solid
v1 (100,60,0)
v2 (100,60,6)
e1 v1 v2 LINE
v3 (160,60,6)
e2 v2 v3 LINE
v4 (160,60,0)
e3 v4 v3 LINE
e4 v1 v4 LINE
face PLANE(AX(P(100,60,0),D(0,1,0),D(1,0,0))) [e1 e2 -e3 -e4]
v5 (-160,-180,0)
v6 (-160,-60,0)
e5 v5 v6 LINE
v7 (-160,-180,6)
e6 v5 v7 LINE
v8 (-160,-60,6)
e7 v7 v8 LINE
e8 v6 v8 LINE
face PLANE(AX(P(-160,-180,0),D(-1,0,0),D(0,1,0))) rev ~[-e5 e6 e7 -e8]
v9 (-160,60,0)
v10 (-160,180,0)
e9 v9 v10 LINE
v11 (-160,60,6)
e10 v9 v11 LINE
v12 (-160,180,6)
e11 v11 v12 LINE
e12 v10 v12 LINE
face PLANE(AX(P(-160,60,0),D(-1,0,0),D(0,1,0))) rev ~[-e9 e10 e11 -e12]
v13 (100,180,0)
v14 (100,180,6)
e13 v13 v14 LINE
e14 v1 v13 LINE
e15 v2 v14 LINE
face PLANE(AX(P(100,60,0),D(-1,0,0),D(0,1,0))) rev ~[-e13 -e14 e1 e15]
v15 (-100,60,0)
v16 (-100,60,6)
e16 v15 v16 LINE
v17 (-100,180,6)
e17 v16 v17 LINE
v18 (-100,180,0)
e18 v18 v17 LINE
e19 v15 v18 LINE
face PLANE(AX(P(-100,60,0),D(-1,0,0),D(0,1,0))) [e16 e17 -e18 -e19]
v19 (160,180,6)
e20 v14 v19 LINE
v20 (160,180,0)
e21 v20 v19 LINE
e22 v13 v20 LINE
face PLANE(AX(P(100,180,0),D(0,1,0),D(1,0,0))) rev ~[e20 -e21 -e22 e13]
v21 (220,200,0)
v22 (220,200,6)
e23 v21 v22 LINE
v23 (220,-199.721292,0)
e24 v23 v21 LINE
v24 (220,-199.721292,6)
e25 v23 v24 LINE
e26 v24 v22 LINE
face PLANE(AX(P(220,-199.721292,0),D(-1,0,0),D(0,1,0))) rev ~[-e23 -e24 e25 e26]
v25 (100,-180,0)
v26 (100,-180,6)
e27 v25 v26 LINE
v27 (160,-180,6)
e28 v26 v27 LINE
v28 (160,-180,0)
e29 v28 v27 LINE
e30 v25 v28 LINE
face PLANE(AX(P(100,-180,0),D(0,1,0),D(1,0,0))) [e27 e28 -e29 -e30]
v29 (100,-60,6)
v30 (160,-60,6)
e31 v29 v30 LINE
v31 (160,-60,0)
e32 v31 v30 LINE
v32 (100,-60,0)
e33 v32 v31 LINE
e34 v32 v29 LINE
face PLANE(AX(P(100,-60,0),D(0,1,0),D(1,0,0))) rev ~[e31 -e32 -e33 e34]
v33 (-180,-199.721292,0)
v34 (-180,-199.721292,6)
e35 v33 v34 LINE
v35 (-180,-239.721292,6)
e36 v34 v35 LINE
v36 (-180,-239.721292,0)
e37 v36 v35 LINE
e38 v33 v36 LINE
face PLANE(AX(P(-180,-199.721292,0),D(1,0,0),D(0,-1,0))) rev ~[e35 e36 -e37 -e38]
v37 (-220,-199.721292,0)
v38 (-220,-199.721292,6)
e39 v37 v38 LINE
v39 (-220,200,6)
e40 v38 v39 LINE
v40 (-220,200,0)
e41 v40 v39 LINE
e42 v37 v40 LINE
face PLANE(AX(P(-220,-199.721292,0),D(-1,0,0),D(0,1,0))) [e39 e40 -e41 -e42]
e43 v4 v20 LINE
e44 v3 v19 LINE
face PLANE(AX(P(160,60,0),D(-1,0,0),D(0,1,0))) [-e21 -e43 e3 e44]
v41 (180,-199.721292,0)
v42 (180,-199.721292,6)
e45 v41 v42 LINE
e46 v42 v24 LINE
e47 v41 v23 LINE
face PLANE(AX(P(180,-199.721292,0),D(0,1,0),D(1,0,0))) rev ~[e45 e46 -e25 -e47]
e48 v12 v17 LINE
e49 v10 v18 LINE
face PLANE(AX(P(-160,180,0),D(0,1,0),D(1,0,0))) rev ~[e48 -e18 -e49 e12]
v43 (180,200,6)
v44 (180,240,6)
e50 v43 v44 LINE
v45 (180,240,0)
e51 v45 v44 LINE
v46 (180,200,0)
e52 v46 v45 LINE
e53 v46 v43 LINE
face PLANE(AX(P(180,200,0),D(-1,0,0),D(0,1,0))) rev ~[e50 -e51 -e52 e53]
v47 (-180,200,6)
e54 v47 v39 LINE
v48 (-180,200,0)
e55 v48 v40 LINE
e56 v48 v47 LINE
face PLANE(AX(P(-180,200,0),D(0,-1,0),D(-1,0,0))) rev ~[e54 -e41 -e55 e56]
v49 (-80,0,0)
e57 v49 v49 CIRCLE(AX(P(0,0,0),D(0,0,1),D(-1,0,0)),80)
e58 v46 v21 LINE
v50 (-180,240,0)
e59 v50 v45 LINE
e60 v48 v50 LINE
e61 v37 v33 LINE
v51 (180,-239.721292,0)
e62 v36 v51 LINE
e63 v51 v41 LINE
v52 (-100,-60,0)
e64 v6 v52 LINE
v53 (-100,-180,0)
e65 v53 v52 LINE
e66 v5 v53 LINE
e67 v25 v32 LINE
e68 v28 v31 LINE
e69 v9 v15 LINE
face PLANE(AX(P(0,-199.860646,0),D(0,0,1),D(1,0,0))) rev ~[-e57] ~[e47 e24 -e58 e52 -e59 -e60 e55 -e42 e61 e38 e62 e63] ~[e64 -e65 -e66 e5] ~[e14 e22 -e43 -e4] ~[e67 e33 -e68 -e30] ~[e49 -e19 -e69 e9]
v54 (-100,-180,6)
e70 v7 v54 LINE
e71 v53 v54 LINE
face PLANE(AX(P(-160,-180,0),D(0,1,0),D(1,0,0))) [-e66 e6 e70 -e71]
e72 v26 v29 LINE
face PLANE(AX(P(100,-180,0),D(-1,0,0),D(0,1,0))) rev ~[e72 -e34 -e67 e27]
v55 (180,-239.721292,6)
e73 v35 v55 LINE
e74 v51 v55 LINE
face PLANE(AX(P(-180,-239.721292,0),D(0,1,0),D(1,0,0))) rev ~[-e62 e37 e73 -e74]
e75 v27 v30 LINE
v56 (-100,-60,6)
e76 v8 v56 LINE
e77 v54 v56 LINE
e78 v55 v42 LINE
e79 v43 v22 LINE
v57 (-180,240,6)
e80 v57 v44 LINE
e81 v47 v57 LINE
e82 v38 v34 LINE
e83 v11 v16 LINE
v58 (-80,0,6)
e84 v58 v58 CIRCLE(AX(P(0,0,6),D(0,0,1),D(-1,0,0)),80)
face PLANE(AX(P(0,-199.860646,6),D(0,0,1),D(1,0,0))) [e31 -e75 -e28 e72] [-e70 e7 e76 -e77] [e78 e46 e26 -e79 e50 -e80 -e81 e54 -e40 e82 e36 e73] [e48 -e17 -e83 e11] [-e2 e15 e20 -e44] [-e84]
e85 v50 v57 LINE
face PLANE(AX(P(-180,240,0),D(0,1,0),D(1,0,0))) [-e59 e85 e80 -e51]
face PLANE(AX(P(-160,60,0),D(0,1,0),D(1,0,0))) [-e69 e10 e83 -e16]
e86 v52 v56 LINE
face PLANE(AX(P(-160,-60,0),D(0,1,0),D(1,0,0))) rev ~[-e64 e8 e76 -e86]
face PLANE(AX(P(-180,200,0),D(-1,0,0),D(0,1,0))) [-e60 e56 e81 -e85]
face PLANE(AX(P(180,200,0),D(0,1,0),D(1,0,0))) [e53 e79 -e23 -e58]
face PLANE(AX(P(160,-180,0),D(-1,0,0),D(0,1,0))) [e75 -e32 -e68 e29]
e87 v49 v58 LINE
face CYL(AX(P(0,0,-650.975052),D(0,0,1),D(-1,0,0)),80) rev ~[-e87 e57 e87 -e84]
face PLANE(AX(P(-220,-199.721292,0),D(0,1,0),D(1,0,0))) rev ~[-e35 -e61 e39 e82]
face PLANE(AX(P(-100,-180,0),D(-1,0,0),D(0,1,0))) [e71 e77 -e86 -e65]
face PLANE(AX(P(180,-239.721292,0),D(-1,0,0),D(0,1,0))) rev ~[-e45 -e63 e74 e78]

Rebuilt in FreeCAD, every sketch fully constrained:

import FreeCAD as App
import Part
import Sketcher
Q = App.Units.Quantity

doc = App.newDocument("Part")
body = doc.addObject("PartDesign::Body", "Body")

# Sketch on XY plane
sketch1 = body.newObject("Sketcher::SketchObject", "Sketch")
sketch1.AttachmentSupport = (doc.getObject("XY_Plane"), [""])
sketch1.MapMode = "FlatFace"
sketch1.addGeometry(Part.LineSegment(App.Vector(180, 240, 0), App.Vector(-180, 240, 0)), False)
sketch1.addGeometry(Part.LineSegment(App.Vector(-180, 240, 0), App.Vector(-180, 200, 0)), False)
sketch1.addGeometry(Part.LineSegment(App.Vector(-180, 200, 0), App.Vector(-220, 200, 0)), False)
sketch1.addGeometry(Part.LineSegment(App.Vector(-220, 200, 0), App.Vector(-220, -200, 0)), False)
sketch1.addGeometry(Part.LineSegment(App.Vector(-220, -200, 0), App.Vector(-180, -200, 0)), False)
sketch1.addGeometry(Part.LineSegment(App.Vector(-180, -200, 0), App.Vector(-180, -240, 0)), False)
sketch1.addGeometry(Part.LineSegment(App.Vector(-180, -240, 0), App.Vector(180, -240, 0)), False)
sketch1.addGeometry(Part.LineSegment(App.Vector(180, -240, 0), App.Vector(180, -200, 0)), False)
sketch1.addGeometry(Part.LineSegment(App.Vector(180, -200, 0), App.Vector(220, -200, 0)), False)
sketch1.addGeometry(Part.LineSegment(App.Vector(220, -200, 0), App.Vector(220, 200, 0)), False)
sketch1.addGeometry(Part.LineSegment(App.Vector(220, 200, 0), App.Vector(180, 200, 0)), False)
sketch1.addGeometry(Part.LineSegment(App.Vector(180, 200, 0), App.Vector(180, 240, 0)), False)
sketch1.addGeometry(Part.LineSegment(App.Vector(-100, -180, 0), App.Vector(-160, -180, 0)), False)
sketch1.addGeometry(Part.LineSegment(App.Vector(-160, -180, 0), App.Vector(-160, -60, 0)), False)
sketch1.addGeometry(Part.LineSegment(App.Vector(-160, -60, 0), App.Vector(-100, -60, 0)), False)
sketch1.addGeometry(Part.LineSegment(App.Vector(-100, -60, 0), App.Vector(-100, -180, 0)), False)
sketch1.addGeometry(Part.LineSegment(App.Vector(160, -180, 0), App.Vector(100, -180, 0)), False)
sketch1.addGeometry(Part.LineSegment(App.Vector(100, -180, 0), App.Vector(100, -60, 0)), False)
sketch1.addGeometry(Part.LineSegment(App.Vector(100, -60, 0), App.Vector(160, -60, 0)), False)
sketch1.addGeometry(Part.LineSegment(App.Vector(160, -60, 0), App.Vector(160, -180, 0)), False)
sketch1.addGeometry(Part.LineSegment(App.Vector(-100, 60, 0), App.Vector(-160, 60, 0)), False)
sketch1.addGeometry(Part.LineSegment(App.Vector(-160, 60, 0), App.Vector(-160, 180, 0)), False)
sketch1.addGeometry(Part.LineSegment(App.Vector(-160, 180, 0), App.Vector(-100, 180, 0)), False)
sketch1.addGeometry(Part.LineSegment(App.Vector(-100, 180, 0), App.Vector(-100, 60, 0)), False)
sketch1.addGeometry(Part.LineSegment(App.Vector(160, 60, 0), App.Vector(100, 60, 0)), False)
sketch1.addGeometry(Part.LineSegment(App.Vector(100, 60, 0), App.Vector(100, 180, 0)), False)
sketch1.addGeometry(Part.LineSegment(App.Vector(100, 180, 0), App.Vector(160, 180, 0)), False)
sketch1.addGeometry(Part.LineSegment(App.Vector(160, 180, 0), App.Vector(160, 60, 0)), False)
sketch1.addConstraint(Sketcher.Constraint("Coincident", 0, 2, 1, 1))
sketch1.addConstraint(Sketcher.Constraint("Coincident", 1, 2, 2, 1))
sketch1.addConstraint(Sketcher.Constraint("Coincident", 2, 2, 3, 1))
sketch1.addConstraint(Sketcher.Constraint("Coincident", 3, 2, 4, 1))
sketch1.addConstraint(Sketcher.Constraint("Coincident", 4, 2, 5, 1))
sketch1.addConstraint(Sketcher.Constraint("Coincident", 5, 2, 6, 1))
sketch1.addConstraint(Sketcher.Constraint("Coincident", 6, 2, 7, 1))
sketch1.addConstraint(Sketcher.Constraint("Coincident", 7, 2, 8, 1))
sketch1.addConstraint(Sketcher.Constraint("Coincident", 8, 2, 9, 1))
sketch1.addConstraint(Sketcher.Constraint("Coincident", 9, 2, 10, 1))
sketch1.addConstraint(Sketcher.Constraint("Coincident", 10, 2, 11, 1))
sketch1.addConstraint(Sketcher.Constraint("Coincident", 11, 2, 0, 1))
sketch1.addConstraint(Sketcher.Constraint("Coincident", 12, 2, 13, 1))
sketch1.addConstraint(Sketcher.Constraint("Coincident", 13, 2, 14, 1))
sketch1.addConstraint(Sketcher.Constraint("Coincident", 14, 2, 15, 1))
sketch1.addConstraint(Sketcher.Constraint("Coincident", 15, 2, 12, 1))
sketch1.addConstraint(Sketcher.Constraint("Coincident", 16, 2, 17, 1))
sketch1.addConstraint(Sketcher.Constraint("Coincident", 17, 2, 18, 1))
sketch1.addConstraint(Sketcher.Constraint("Coincident", 18, 2, 19, 1))
sketch1.addConstraint(Sketcher.Constraint("Coincident", 19, 2, 16, 1))
sketch1.addConstraint(Sketcher.Constraint("Coincident", 20, 2, 21, 1))
sketch1.addConstraint(Sketcher.Constraint("Coincident", 21, 2, 22, 1))
sketch1.addConstraint(Sketcher.Constraint("Coincident", 22, 2, 23, 1))
sketch1.addConstraint(Sketcher.Constraint("Coincident", 23, 2, 20, 1))
sketch1.addConstraint(Sketcher.Constraint("Coincident", 24, 2, 25, 1))
sketch1.addConstraint(Sketcher.Constraint("Coincident", 25, 2, 26, 1))
sketch1.addConstraint(Sketcher.Constraint("Coincident", 26, 2, 27, 1))
sketch1.addConstraint(Sketcher.Constraint("Coincident", 27, 2, 24, 1))
sketch1.addConstraint(Sketcher.Constraint("Horizontal", 0))
sketch1.addConstraint(Sketcher.Constraint("Vertical", 1))
sketch1.addConstraint(Sketcher.Constraint("Horizontal", 2))
sketch1.addConstraint(Sketcher.Constraint("Vertical", 3))
sketch1.addConstraint(Sketcher.Constraint("Horizontal", 4))
sketch1.addConstraint(Sketcher.Constraint("Vertical", 5))
sketch1.addConstraint(Sketcher.Constraint("Horizontal", 6))
sketch1.addConstraint(Sketcher.Constraint("Vertical", 7))
sketch1.addConstraint(Sketcher.Constraint("Horizontal", 8))
sketch1.addConstraint(Sketcher.Constraint("Vertical", 9))
sketch1.addConstraint(Sketcher.Constraint("Horizontal", 10))
sketch1.addConstraint(Sketcher.Constraint("Vertical", 11))
sketch1.addConstraint(Sketcher.Constraint("Horizontal", 12))
sketch1.addConstraint(Sketcher.Constraint("Vertical", 13))
sketch1.addConstraint(Sketcher.Constraint("Horizontal", 14))
sketch1.addConstraint(Sketcher.Constraint("Vertical", 15))
sketch1.addConstraint(Sketcher.Constraint("Horizontal", 16))
sketch1.addConstraint(Sketcher.Constraint("Vertical", 17))
sketch1.addConstraint(Sketcher.Constraint("Horizontal", 18))
sketch1.addConstraint(Sketcher.Constraint("Vertical", 19))
sketch1.addConstraint(Sketcher.Constraint("Horizontal", 20))
sketch1.addConstraint(Sketcher.Constraint("Vertical", 21))
sketch1.addConstraint(Sketcher.Constraint("Horizontal", 22))
sketch1.addConstraint(Sketcher.Constraint("Vertical", 23))
sketch1.addConstraint(Sketcher.Constraint("Horizontal", 24))
sketch1.addConstraint(Sketcher.Constraint("Vertical", 25))
sketch1.addConstraint(Sketcher.Constraint("Horizontal", 26))
sketch1.addConstraint(Sketcher.Constraint("Vertical", 27))
sketch1.addConstraint(Sketcher.Constraint("Symmetric", 18, 2, 20, 2, -1, 1))
sketch1.addConstraint(Sketcher.Constraint("Symmetric", 16, 2, 22, 2, -1, 1))
sketch1.addConstraint(Sketcher.Constraint("Symmetric", 14, 2, 24, 2, -1, 1))
sketch1.addConstraint(Sketcher.Constraint("Symmetric", 12, 2, 26, 2, -1, 1))
sketch1.addConstraint(Sketcher.Constraint("Symmetric", 4, 2, 7, 2, -2))
sketch1.addConstraint(Sketcher.Constraint("Symmetric", 2, 2, 9, 2, -2))
sketch1.addConstraint(Sketcher.Constraint("Symmetric", 15, 2, 16, 2, -2))
sketch1.addConstraint(Sketcher.Constraint("Symmetric", 13, 2, 18, 2, -2))
sketch1.addConstraint(Sketcher.Constraint("Vertical", 1, 2, 4, 2))
sketch1.addConstraint(Sketcher.Constraint("Vertical", 7, 2, 10, 2))
sketch1.addConstraint(Sketcher.Constraint("Equal", 10, 1))
sketch1.addConstraint(Sketcher.Constraint("Equal", 1, 5))
sketch1.addConstraint(Sketcher.Constraint("DistanceX", 0, 2, 0, 1, Q("360 mm")))
sketch1.addConstraint(Sketcher.Constraint("DistanceX", 2, 2, 2, 1, Q("40 mm")))
sketch1.addConstraint(Sketcher.Constraint("DistanceX", 12, 2, 12, 1, Q("60 mm")))
sketch1.addConstraint(Sketcher.Constraint("DistanceY", 13, 1, 13, 2, Q("120 mm")))
sketch1.addConstraint(Sketcher.Constraint("DistanceY", -1, 1, 0, 2, Q("240 mm")))
sketch1.addConstraint(Sketcher.Constraint("DistanceX", 12, 2, -1, 1, Q("160 mm")))
sketch1.addConstraint(Sketcher.Constraint("DistanceY", 12, 2, -1, 1, Q("180 mm")))
sketch1.addConstraint(Sketcher.Constraint("DistanceY", 3, 2, 3, 1, Q("399.721292 mm")))
pad1 = body.newObject("PartDesign::Pad", "Pad")
pad1.Profile = sketch1
pad1.Length = 6

# Sketch on XY plane
sketch2 = body.newObject("Sketcher::SketchObject", "Sketch001")
sketch2.AttachmentSupport = (doc.getObject("XY_Plane"), [""])
sketch2.MapMode = "FlatFace"
sketch2.addGeometry(Part.Circle(App.Vector(0, 0, 0), App.Vector(0, 0, 1), 80), False)
sketch2.addConstraint(Sketcher.Constraint("Coincident", 0, 3, -1, 1))
sketch2.addConstraint(Sketcher.Constraint("Diameter", 0, Q("160 mm")))
doc.recompute()
hole = body.newObject("PartDesign::Hole", "Hole")
hole.Profile = sketch2
hole.ThreadType = "None"
hole.Diameter = 160
hole.DepthType = "ThroughAll"
hole.Reversed = True

doc.recompute()
